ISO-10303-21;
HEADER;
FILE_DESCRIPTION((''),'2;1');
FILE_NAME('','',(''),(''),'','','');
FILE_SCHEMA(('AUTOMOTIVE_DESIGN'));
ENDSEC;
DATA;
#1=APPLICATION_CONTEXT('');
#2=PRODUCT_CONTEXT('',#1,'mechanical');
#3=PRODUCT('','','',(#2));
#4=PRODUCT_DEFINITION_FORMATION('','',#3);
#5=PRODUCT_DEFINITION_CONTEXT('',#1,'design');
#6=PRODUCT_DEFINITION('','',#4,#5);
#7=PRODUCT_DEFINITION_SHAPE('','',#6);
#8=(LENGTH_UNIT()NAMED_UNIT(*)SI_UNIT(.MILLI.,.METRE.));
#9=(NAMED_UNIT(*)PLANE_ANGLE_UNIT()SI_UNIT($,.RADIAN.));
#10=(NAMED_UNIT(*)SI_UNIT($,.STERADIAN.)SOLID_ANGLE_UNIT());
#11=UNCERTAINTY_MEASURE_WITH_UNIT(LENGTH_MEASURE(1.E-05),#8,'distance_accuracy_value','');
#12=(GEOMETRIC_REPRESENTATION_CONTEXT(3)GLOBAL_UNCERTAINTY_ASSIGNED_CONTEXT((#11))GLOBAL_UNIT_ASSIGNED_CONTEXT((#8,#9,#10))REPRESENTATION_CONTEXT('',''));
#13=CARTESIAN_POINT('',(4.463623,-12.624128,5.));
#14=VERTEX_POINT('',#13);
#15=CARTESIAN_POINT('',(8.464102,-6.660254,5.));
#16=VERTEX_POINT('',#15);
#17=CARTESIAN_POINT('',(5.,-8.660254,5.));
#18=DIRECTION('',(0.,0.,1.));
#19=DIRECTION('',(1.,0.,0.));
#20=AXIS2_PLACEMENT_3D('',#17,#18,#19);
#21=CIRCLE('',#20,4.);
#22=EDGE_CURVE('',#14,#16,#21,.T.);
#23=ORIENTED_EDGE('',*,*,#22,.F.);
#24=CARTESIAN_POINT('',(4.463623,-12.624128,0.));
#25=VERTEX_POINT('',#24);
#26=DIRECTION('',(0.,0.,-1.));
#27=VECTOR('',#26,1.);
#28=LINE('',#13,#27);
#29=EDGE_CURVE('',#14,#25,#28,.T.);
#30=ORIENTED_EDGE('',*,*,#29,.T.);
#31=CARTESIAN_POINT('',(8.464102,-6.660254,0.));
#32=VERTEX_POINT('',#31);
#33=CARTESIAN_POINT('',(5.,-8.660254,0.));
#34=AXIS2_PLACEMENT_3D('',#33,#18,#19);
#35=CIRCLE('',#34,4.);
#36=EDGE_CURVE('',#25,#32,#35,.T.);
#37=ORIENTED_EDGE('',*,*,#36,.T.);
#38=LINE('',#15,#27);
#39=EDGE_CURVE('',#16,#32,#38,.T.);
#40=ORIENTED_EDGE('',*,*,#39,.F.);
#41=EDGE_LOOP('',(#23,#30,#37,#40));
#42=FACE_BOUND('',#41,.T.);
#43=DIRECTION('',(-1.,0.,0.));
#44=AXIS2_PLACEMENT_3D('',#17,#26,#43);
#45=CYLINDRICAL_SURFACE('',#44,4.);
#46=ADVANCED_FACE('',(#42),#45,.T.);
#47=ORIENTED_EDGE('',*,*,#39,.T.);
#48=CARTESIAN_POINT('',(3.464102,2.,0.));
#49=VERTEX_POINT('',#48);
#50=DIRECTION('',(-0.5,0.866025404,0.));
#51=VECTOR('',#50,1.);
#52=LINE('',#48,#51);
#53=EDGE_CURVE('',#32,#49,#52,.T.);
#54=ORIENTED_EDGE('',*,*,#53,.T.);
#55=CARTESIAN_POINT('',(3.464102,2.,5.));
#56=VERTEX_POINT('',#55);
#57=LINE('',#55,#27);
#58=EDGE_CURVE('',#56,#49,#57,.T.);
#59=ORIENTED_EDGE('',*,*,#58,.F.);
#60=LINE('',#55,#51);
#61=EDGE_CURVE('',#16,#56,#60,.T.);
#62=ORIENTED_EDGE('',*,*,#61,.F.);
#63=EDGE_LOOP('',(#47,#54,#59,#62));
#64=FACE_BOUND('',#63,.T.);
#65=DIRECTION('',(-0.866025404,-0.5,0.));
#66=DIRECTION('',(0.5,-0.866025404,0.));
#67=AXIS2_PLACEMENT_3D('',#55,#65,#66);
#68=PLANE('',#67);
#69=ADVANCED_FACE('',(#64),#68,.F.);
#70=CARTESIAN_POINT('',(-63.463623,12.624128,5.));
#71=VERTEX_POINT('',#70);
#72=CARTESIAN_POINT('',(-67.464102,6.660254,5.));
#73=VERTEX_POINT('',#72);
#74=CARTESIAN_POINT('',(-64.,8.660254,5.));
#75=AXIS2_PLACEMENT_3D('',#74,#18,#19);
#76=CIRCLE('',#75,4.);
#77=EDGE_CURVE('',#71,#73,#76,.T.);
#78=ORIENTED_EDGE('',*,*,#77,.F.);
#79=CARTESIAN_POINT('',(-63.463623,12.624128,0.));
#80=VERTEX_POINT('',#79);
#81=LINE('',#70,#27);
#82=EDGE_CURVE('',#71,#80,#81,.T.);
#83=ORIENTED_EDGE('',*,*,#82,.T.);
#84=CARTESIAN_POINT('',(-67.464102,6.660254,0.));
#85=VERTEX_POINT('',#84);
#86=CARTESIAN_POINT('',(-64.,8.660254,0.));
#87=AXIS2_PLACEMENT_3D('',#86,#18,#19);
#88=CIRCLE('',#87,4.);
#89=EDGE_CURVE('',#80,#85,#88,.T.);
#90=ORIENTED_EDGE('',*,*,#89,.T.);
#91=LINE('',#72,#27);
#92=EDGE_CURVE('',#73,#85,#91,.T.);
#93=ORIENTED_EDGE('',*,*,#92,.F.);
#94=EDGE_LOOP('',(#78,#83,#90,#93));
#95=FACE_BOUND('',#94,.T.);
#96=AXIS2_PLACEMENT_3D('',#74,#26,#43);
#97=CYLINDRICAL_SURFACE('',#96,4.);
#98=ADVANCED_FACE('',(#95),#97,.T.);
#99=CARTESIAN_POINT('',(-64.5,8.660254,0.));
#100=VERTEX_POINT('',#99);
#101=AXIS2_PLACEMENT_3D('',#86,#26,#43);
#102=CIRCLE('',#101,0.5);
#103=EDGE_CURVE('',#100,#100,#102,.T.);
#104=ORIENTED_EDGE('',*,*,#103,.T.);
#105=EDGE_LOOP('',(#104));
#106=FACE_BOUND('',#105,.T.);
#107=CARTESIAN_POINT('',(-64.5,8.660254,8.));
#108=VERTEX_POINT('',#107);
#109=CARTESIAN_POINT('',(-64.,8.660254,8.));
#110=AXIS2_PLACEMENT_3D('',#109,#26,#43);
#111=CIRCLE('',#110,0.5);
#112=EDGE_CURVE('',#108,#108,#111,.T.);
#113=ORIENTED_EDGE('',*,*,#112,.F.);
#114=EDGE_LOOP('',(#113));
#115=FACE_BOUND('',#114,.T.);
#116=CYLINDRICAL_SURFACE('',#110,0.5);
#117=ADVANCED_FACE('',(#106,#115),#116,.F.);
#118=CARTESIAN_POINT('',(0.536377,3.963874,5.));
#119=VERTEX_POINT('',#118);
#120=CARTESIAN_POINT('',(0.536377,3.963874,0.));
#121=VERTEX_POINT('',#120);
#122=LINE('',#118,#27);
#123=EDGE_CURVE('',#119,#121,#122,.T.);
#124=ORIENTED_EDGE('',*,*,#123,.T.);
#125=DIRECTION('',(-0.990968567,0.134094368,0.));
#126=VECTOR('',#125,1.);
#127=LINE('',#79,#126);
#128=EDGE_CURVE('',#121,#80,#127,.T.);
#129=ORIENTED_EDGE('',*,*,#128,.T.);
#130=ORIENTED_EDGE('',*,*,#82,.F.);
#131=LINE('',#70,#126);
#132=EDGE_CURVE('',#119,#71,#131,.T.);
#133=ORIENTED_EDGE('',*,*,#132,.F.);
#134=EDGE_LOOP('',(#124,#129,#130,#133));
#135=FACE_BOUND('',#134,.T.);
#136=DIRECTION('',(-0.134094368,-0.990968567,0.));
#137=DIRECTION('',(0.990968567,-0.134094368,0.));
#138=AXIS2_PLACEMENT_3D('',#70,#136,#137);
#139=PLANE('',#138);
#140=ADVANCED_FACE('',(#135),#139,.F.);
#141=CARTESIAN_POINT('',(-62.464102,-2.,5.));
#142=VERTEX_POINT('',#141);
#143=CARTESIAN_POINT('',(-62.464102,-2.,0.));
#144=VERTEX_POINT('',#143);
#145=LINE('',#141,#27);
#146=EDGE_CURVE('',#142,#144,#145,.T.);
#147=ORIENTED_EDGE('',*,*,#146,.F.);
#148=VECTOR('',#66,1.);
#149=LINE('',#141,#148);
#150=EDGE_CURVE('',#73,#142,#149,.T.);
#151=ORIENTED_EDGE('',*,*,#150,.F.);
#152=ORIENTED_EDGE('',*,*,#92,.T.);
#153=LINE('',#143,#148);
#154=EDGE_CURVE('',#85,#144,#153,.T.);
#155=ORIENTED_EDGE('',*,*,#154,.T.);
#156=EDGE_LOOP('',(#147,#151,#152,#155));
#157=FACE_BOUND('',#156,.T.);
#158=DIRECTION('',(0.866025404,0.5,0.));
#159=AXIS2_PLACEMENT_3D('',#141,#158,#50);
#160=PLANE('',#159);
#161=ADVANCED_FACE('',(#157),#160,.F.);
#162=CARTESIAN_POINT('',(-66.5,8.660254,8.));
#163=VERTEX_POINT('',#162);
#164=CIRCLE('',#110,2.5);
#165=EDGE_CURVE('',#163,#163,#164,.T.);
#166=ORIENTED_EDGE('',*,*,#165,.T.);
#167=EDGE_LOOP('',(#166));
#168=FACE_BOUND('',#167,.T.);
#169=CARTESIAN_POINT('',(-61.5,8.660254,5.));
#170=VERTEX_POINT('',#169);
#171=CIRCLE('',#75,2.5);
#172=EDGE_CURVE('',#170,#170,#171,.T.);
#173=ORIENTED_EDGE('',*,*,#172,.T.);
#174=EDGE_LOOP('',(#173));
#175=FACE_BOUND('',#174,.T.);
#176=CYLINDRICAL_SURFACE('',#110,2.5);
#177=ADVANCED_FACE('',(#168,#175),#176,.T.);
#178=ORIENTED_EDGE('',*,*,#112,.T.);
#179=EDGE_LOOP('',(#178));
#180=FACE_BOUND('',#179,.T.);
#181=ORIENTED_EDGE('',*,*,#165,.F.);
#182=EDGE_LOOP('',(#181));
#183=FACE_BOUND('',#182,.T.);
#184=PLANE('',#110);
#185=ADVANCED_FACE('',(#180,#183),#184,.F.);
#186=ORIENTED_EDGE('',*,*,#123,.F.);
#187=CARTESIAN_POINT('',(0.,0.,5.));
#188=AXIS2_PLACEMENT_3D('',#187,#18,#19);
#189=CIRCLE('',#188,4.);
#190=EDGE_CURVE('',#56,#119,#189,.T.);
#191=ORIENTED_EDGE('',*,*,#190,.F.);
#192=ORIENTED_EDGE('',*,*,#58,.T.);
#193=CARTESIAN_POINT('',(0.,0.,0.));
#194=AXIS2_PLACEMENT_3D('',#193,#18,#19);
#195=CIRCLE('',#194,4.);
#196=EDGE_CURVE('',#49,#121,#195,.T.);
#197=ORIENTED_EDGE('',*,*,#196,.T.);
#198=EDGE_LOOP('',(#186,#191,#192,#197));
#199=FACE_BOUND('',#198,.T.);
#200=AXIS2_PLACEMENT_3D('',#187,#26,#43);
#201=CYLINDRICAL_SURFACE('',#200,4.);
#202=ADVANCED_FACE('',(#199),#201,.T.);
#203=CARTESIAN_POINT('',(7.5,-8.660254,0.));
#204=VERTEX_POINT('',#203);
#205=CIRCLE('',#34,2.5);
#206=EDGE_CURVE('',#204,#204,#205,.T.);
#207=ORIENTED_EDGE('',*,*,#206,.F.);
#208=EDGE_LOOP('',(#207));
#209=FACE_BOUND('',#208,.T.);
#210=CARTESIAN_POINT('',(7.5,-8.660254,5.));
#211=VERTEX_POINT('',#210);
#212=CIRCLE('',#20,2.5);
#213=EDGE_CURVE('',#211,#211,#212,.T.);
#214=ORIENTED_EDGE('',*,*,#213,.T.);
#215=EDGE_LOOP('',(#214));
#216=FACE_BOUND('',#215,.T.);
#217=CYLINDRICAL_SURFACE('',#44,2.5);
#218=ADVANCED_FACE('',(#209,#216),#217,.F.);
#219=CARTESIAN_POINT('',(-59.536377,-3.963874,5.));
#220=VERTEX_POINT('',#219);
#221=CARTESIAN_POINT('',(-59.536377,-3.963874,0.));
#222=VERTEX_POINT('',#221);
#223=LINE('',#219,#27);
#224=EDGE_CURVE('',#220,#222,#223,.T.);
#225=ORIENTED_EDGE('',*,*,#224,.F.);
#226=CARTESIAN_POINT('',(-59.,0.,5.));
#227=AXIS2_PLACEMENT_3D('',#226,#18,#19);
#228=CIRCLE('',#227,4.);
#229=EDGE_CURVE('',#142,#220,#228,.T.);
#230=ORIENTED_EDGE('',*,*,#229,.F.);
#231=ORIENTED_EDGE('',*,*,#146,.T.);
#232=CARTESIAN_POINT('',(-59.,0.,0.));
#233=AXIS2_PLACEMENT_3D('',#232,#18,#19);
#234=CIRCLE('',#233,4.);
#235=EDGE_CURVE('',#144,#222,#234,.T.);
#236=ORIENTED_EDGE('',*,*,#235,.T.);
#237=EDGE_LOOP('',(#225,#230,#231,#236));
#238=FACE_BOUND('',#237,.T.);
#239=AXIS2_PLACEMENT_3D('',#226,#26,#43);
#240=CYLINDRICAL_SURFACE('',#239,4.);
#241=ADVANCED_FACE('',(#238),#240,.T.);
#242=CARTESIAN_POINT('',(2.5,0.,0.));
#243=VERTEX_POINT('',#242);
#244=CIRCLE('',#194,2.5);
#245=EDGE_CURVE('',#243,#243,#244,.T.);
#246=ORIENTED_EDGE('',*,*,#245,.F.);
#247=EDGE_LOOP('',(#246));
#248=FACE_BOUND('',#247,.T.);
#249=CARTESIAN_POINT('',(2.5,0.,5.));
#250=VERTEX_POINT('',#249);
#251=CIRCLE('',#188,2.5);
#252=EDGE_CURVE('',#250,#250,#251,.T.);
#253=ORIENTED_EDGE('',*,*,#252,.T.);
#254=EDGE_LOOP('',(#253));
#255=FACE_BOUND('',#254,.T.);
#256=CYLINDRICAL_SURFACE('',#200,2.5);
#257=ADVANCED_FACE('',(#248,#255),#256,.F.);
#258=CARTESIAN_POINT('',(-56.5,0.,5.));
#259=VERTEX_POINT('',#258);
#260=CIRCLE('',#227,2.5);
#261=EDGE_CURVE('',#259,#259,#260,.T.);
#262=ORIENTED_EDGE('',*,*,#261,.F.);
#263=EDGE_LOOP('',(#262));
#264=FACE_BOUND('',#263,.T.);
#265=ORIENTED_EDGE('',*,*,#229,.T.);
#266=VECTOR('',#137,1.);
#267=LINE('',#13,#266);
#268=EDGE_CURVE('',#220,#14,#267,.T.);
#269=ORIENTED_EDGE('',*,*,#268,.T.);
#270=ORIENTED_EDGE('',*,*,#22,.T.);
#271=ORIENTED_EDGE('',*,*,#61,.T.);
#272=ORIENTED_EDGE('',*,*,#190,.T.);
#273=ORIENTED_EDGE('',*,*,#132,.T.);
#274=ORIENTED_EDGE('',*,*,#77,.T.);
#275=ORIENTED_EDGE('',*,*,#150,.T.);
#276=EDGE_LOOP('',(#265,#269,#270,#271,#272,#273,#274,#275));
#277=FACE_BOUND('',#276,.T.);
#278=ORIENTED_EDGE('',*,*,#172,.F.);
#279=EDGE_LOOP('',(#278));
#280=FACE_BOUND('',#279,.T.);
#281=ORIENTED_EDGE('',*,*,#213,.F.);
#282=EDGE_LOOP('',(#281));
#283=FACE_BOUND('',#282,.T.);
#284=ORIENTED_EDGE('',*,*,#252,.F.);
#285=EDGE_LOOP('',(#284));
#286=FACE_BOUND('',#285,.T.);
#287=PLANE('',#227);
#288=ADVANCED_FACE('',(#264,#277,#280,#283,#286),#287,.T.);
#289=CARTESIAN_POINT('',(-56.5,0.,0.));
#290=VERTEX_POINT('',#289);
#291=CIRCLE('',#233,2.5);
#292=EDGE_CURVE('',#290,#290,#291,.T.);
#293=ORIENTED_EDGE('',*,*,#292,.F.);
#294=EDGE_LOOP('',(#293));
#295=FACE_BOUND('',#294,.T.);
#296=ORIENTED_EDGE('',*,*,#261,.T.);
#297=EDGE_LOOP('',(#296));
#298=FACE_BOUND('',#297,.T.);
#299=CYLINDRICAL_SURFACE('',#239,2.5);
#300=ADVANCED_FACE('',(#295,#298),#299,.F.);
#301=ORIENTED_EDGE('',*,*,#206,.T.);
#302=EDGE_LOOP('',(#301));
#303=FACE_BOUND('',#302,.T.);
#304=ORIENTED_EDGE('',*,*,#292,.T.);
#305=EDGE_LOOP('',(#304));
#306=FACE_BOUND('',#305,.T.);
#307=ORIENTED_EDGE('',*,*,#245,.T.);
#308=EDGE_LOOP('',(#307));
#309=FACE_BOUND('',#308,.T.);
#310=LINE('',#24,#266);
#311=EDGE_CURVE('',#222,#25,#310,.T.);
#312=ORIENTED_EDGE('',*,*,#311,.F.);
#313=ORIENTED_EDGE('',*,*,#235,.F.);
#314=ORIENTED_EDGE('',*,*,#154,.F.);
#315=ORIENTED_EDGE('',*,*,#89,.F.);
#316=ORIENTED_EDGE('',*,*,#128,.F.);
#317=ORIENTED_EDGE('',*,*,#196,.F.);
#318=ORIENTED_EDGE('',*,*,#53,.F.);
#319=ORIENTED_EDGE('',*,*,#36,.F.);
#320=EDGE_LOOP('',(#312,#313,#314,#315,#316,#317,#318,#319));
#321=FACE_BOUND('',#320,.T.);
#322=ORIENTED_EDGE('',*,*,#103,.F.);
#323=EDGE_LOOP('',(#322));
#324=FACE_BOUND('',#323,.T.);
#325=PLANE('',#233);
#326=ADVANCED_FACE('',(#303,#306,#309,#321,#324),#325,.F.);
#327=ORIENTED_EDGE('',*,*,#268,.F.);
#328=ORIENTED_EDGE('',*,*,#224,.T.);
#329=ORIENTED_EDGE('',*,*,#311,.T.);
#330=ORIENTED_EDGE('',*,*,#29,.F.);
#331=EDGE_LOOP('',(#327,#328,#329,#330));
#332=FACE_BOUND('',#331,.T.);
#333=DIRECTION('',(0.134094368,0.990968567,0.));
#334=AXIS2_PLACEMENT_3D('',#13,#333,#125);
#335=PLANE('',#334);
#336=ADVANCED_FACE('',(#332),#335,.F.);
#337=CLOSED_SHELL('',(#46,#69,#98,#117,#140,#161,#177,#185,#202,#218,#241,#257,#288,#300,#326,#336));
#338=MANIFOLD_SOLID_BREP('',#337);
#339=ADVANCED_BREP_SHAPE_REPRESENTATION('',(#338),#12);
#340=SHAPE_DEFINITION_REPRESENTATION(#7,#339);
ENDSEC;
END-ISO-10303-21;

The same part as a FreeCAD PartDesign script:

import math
import FreeCAD as App
import Part
import Sketcher
Q = App.Units.Quantity

doc = App.newDocument("Part")
params = doc.addObject("Spreadsheet::Sheet", "Params")
for row, (alias, value) in enumerate([
    ("sketch1_diameter", "5 mm"),
    ("sketch1_radius", "4 mm"),
    ("sketch1_length", "10 mm"),
    ("pad1_length", "5 mm"),
    ("sketch2_diameter", "5 mm"),
    ("sketch2_diameter2", "1 mm"),
    ("pad2_length", "8 mm"),
], start=1):
    params.set(f"A{row}", alias)
    params.set(f"B{row}", "=" + value)
    params.setAlias(f"B{row}", alias)

body = doc.addObject("PartDesign::Body", "Body")

# Sketch on XY plane
sketch1 = body.newObject("Sketcher::SketchObject", "Sketch")
sketch1.AttachmentSupport = (doc.getObject("XY_Plane"), [""])
sketch1.MapMode = "FlatFace"
sketch1.addGeometry(Part.LineSegment(App.Vector(0.536377, 3.963874, 0), App.Vector(-63.463623, 12.624128, 0)), False)
sketch1.addGeometry(Part.ArcOfCircle(Part.Circle(App.Vector(-64, 8.660254, 0), App.Vector(0, 0, 1), 4), math.radians(82.293745), math.radians(210)), False)
sketch1.addGeometry(Part.LineSegment(App.Vector(-67.464102, 6.660254, 0), App.Vector(-62.464102, -2, 0)), False)
sketch1.addGeometry(Part.ArcOfCircle(Part.Circle(App.Vector(-59, 0, 0), App.Vector(0, 0, 1), 4), math.radians(-150), math.radians(-97.706255)), False)
sketch1.addGeometry(Part.LineSegment(App.Vector(-59.536377, -3.963874, 0), App.Vector(4.463623, -12.624128, 0)), False)
sketch1.addGeometry(Part.ArcOfCircle(Part.Circle(App.Vector(5, -8.660254, 0), App.Vector(0, 0, 1), 4), math.radians(-97.706255), math.radians(30)), False)
sketch1.addGeometry(Part.LineSegment(App.Vector(8.464102, -6.660254, 0), App.Vector(3.464102, 2, 0)), False)
sketch1.addGeometry(Part.ArcOfCircle(Part.Circle(App.Vector(0, 0, 0), App.Vector(0, 0, 1), 4), math.radians(30), math.radians(82.293745)), False)
sketch1.addGeometry(Part.Circle(App.Vector(5, -8.660254, 0), App.Vector(0, 0, 1), 2.5), False)
sketch1.addGeometry(Part.Circle(App.Vector(0, 0, 0), App.Vector(0, 0, 1), 2.5), False)
sketch1.addGeometry(Part.Circle(App.Vector(-59, 0, 0), App.Vector(0, 0, 1), 2.5), False)
sketch1.addGeometry(Part.Circle(App.Vector(-64, 8.660254, 0), App.Vector(0, 0, 1), 2.5), False)
sketch1.addConstraint(Sketcher.Constraint("Tangent", 0, 2, 1, 1))
sketch1.addConstraint(Sketcher.Constraint("Tangent", 1, 2, 2, 1))
sketch1.addConstraint(Sketcher.Constraint("Tangent", 2, 2, 3, 1))
sketch1.addConstraint(Sketcher.Constraint("Tangent", 3, 2, 4, 1))
sketch1.addConstraint(Sketcher.Constraint("Tangent", 4, 2, 5, 1))
sketch1.addConstraint(Sketcher.Constraint("Tangent", 5, 2, 6, 1))
sketch1.addConstraint(Sketcher.Constraint("Tangent", 6, 2, 7, 1))
sketch1.addConstraint(Sketcher.Constraint("Tangent", 7, 2, 0, 1))
sketch1.addConstraint(Sketcher.Constraint("Coincident", 7, 3, -1, 1))
sketch1.addConstraint(Sketcher.Constraint("Coincident", 9, 3, -1, 1))
sketch1.addConstraint(Sketcher.Constraint("Coincident", 8, 3, 5, 3))
sketch1.addConstraint(Sketcher.Constraint("Coincident", 10, 3, 3, 3))
sketch1.addConstraint(Sketcher.Constraint("Coincident", 11, 3, 1, 3))
sketch1.addConstraint(Sketcher.Constraint("Equal", 1, 3))
sketch1.addConstraint(Sketcher.Constraint("Equal", 3, 5))
sketch1.addConstraint(Sketcher.Constraint("Equal", 5, 7))
sketch1.addConstraint(Sketcher.Constraint("Equal", 8, 9))
sketch1.addConstraint(Sketcher.Constraint("Equal", 9, 10))
sketch1.addConstraint(Sketcher.Constraint("Equal", 10, 11))
sketch1.addConstraint(Sketcher.Constraint("PointOnObject", 3, 3, -1))
sketch1.addConstraint(Sketcher.Constraint("Parallel", 0, 4))
sketch1.addConstraint(Sketcher.Constraint("Parallel", 2, 6))
sketch1.addConstraint(Sketcher.Constraint("Diameter", 8, Q("5 mm")))
sketch1.addConstraint(Sketcher.Constraint("Radius", 1, Q("4 mm")))
sketch1.addConstraint(Sketcher.Constraint("Angle", 2, Q("-60 deg")))
sketch1.addConstraint(Sketcher.Constraint("Distance", 2, Q("10 mm")))
sketch1.addConstraint(Sketcher.Constraint("DistanceX", 1, 3, -1, 1, Q("64 mm")))
sketch1.setExpression("Constraints[22]", "Params.sketch1_diameter")
sketch1.setExpression("Constraints[23]", "Params.sketch1_radius")
sketch1.setExpression("Constraints[25]", "Params.sketch1_length")
pad1 = body.newObject("PartDesign::Pad", "Pad")
pad1.Profile = sketch1
pad1.setExpression("Length", "Params.pad1_length")

# Sketch on XY plane
sketch2 = body.newObject("Sketcher::SketchObject", "Sketch001")
sketch2.AttachmentSupport = (doc.getObject("XY_Plane"), [""])
sketch2.MapMode = "FlatFace"
sketch2.addGeometry(Part.Circle(App.Vector(-64, 8.660254, 0), App.Vector(0, 0, 1), 2.5), False)
sketch2.addGeometry(Part.Circle(App.Vector(-64, 8.660254, 0), App.Vector(0, 0, 1), 0.5), False)
sketch2.addConstraint(Sketcher.Constraint("Coincident", 1, 3, 0, 3))
sketch2.addConstraint(Sketcher.Constraint("Diameter", 0, Q("5 mm")))
sketch2.addConstraint(Sketcher.Constraint("Diameter", 1, Q("1 mm")))
sketch2.addConstraint(Sketcher.Constraint("DistanceX", 0, 3, -1, 1, Q("64 mm")))
sketch2.addConstraint(Sketcher.Constraint("DistanceY", -1, 1, 0, 3, Q("8.660254 mm")))
sketch2.setExpression("Constraints[1]", "Params.sketch2_diameter")
sketch2.setExpression("Constraints[2]", "Params.sketch2_diameter2")
pad2 = body.newObject("PartDesign::Pad", "Pad001")
pad2.Profile = sketch2
pad2.setExpression("Length", "Params.pad2_length")

doc.recompute()
